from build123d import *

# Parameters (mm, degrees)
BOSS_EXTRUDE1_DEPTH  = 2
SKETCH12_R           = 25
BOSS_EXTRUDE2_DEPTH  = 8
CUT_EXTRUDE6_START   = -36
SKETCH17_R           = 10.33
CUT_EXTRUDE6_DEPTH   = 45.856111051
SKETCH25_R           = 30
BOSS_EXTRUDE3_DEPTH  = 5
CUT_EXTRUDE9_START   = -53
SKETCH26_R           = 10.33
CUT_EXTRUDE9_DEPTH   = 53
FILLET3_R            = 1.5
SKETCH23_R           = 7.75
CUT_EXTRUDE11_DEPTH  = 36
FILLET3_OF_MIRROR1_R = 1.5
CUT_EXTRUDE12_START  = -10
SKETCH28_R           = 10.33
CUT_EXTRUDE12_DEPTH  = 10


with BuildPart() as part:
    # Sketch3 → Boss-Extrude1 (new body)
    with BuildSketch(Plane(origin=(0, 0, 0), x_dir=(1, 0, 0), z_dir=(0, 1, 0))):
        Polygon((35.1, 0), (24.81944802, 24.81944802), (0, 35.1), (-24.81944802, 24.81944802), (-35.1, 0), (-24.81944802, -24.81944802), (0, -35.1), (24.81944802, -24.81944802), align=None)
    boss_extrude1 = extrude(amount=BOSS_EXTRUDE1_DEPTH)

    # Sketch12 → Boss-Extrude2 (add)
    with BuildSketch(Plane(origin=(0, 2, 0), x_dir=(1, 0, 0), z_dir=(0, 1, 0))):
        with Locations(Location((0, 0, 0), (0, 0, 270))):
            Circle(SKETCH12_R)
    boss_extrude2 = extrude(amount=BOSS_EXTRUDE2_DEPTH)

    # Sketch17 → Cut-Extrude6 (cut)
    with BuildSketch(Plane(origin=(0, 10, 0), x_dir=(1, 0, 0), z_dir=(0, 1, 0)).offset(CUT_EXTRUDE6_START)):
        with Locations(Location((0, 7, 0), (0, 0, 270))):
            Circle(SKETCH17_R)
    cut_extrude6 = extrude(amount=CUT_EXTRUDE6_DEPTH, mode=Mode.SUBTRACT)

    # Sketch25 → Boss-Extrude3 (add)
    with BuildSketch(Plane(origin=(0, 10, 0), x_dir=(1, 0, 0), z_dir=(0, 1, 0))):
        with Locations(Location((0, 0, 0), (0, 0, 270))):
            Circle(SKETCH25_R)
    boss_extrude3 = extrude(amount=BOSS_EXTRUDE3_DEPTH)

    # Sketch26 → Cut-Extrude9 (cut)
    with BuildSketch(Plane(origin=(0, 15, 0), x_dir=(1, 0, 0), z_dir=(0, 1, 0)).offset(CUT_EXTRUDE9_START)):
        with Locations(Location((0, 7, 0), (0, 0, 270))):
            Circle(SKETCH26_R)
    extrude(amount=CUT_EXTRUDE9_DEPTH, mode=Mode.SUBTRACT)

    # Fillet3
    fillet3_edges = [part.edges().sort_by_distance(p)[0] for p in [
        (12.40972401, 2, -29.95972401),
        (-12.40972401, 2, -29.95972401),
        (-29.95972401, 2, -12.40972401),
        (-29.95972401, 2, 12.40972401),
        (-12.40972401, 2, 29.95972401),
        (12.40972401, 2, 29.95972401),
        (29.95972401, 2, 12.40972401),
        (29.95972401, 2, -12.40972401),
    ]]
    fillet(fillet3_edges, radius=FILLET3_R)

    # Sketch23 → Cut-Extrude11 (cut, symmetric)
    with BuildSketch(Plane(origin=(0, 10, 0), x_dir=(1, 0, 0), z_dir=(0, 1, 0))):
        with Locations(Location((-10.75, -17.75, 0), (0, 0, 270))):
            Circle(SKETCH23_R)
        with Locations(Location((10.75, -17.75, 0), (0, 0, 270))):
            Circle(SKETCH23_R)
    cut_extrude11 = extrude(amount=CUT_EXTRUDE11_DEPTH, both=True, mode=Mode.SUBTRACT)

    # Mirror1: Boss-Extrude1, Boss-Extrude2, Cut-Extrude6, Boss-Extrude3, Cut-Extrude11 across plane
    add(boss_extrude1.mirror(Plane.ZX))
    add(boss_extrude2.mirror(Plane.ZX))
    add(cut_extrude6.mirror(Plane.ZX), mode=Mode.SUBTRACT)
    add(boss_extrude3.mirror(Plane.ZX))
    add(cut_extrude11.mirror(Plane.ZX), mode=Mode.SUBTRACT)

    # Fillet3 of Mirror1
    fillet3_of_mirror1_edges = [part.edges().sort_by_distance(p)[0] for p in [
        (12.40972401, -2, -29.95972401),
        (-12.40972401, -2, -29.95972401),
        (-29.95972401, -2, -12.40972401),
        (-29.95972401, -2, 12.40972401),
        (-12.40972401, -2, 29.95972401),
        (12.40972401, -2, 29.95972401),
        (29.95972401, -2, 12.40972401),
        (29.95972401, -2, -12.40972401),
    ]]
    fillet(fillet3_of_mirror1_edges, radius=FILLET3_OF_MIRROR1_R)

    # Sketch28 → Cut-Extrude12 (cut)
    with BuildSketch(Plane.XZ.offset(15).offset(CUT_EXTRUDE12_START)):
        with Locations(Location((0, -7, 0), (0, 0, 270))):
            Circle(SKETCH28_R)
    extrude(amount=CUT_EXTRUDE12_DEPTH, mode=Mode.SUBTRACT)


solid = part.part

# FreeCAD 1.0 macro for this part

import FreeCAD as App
import Part
import Sketcher

V = App.Vector
Q = App.Units.Quantity


def edges_at(feature, points):
    """Names of the edges that pass closest to the given points."""
    edges = feature.Shape.Edges
    near = lambda p: min(range(len(edges)), key=lambda i: edges[i].distToShape(Part.Vertex(*p))[0])
    return sorted({f"Edge{near(p) + 1}" for p in points})


def add_polygon(sketch, points):
    """Adds a closed chain of lines whose ends are joined by coincident constraints."""
    first, n = sketch.GeometryCount, len(points)
    for a, b in zip(points, points[1:] + points[:1]):
        sketch.addGeometry(Part.LineSegment(App.Vector(*a, 0), App.Vector(*b, 0)), False)
    for i in range(n):
        sketch.addConstraint(Sketcher.Constraint("Coincident", first + i, 2, first + (i + 1) % n, 1))

doc = App.newDocument("Part")
body = doc.addObject("PartDesign::Body", "Body")

sketch1 = body.newObject("Sketcher::SketchObject", "Sketch")
sketch1.AttachmentSupport = (doc.getObject("XZ_Plane"), [""])
sketch1.MapMode = "FlatFace"
add_polygon(sketch1, [(35, 0), (25, -25), (0, -35), (-25, -25), (-35, 0), (-25, 25), (0, 35), (25, 25)])
sketch1.addConstraint([
    Sketcher.Constraint("Symmetric", 0, 2, 4, 2, -1, 1),
    Sketcher.Constraint("Symmetric", 1, 2, 5, 2, -1, 1),
    Sketcher.Constraint("Symmetric", 2, 2, 6, 2, -1, 1),
    Sketcher.Constraint("Symmetric", 3, 2, 7, 2, -1, 1),
    Sketcher.Constraint("Symmetric", 0, 2, 2, 2, -2),
    Sketcher.Constraint("PointOnObject", 1, 2, -2),
    Sketcher.Constraint("PointOnObject", 3, 2, -1),
    Sketcher.Constraint("Perpendicular", 0, 2),
    Sketcher.Constraint("Equal", 0, 1),
    Sketcher.Constraint("Angle", 0, Q("-112.5 deg")),
    Sketcher.Constraint("DistanceY", 1, 2, -1, 1, Q("35.1 mm")),
])
pad1 = body.newObject("PartDesign::Pad", "Pad")
pad1.Profile = sketch1
pad1.Length = 2
pad1.Reversed = True

sketch2 = body.newObject("Sketcher::SketchObject", "Sketch001")
sketch2.AttachmentSupport = (doc.getObject("XZ_Plane"), [""])
sketch2.MapMode = "FlatFace"
sketch2.AttachmentOffset = App.Placement(V(0, 0, -2), App.Rotation())
sketch2.addGeometry(Part.Circle(V(0, 0, 0), V(0, 0, 1), 25), False)
sketch2.addConstraint([
    Sketcher.Constraint("Coincident", 0, 3, -1, 1),
    Sketcher.Constraint("Diameter", 0, Q("50 mm")),
])
pad2 = body.newObject("PartDesign::Pad", "Pad001")
pad2.Profile = sketch2
pad2.Length = 8
pad2.Reversed = True

sketch3 = body.newObject("Sketcher::SketchObject", "Sketch002")
sketch3.AttachmentSupport = (doc.getObject("XZ_Plane"), [""])
sketch3.MapMode = "FlatFace"
sketch3.AttachmentOffset = App.Placement(V(0, 0, 26), App.Rotation())
sketch3.addGeometry(Part.Circle(V(0, -7, 0), V(0, 0, 1), 10), False)
sketch3.addConstraint([
    Sketcher.Constraint("PointOnObject", 0, 3, -2),
    Sketcher.Constraint("Diameter", 0, Q("20.66 mm")),
    Sketcher.Constraint("DistanceY", 0, 3, -1, 1, Q("7 mm")),
])
pocket1 = body.newObject("PartDesign::Pocket", "Pocket")
pocket1.Profile = sketch3
pocket1.Length = 45.856111

sketch4 = body.newObject("Sketcher::SketchObject", "Sketch003")
sketch4.AttachmentSupport = (doc.getObject("XZ_Plane"), [""])
sketch4.MapMode = "FlatFace"
sketch4.AttachmentOffset = App.Placement(V(0, 0, -10), App.Rotation())
sketch4.addGeometry(Part.Circle(V(0, 0, 0), V(0, 0, 1), 30), False)
sketch4.addConstraint([
    Sketcher.Constraint("Coincident", 0, 3, -1, 1),
    Sketcher.Constraint("Diameter", 0, Q("60 mm")),
])
pad3 = body.newObject("PartDesign::Pad", "Pad002")
pad3.Profile = sketch4
pad3.Length = 5
pad3.Reversed = True

sketch5 = body.newObject("Sketcher::SketchObject", "Sketch004")
sketch5.AttachmentSupport = (doc.getObject("XZ_Plane"), [""])
sketch5.MapMode = "FlatFace"
sketch5.AttachmentOffset = App.Placement(V(0, 0, 38), App.Rotation())
sketch5.addGeometry(Part.Circle(V(0, -7, 0), V(0, 0, 1), 10), False)
sketch5.addConstraint([
    Sketcher.Constraint("PointOnObject", 0, 3, -2),
    Sketcher.Constraint("Diameter", 0, Q("20.66 mm")),
    Sketcher.Constraint("DistanceY", 0, 3, -1, 1, Q("7 mm")),
])
pocket2 = body.newObject("PartDesign::Pocket", "Pocket001")
pocket2.Profile = sketch5
pocket2.Length = 53
doc.recompute()

fillet = body.newObject("PartDesign::Fillet", "Fillet")
fillet.Base = (pocket2, edges_at(pocket2, [
    (12.41, 2, -29.96),
    (-12.41, 2, -29.96),
    (-29.96, 2, -12.41),
    (-29.96, 2, 12.41),
    (-12.41, 2, 29.96),
    (12.41, 2, 29.96),
    (29.96, 2, 12.41),
    (29.96, 2, -12.41),
]))
fillet.Radius = 1.5

sketch6 = body.newObject("Sketcher::SketchObject", "Sketch005")
sketch6.AttachmentSupport = (doc.getObject("XZ_Plane"), [""])
sketch6.MapMode = "FlatFace"
sketch6.AttachmentOffset = App.Placement(V(0, 0, -10), App.Rotation())
sketch6.addGeometry([
    Part.Circle(V(-11, 18, 0), V(0, 0, 1), 8),
    Part.Circle(V(11, 18, 0), V(0, 0, 1), 8),
], False)
sketch6.addConstraint([
    Sketcher.Constraint("Equal", 0, 1),
    Sketcher.Constraint("Symmetric", 0, 3, 1, 3, -2),
    Sketcher.Constraint("Diameter", 0, Q("15.5 mm")),
    Sketcher.Constraint("DistanceX", 0, 3, 1, 3, Q("21.5 mm")),
    Sketcher.Constraint("DistanceY", -1, 1, 0, 3, Q("17.75 mm")),
])
pocket3 = body.newObject("PartDesign::Pocket", "Pocket002")
pocket3.Profile = sketch6
pocket3.Length = 72
pocket3.Midplane = True
doc.recompute()

mirrored = body.newObject("PartDesign::Mirrored", "Mirrored")
mirrored.Originals = [pad1, pad2, pocket1, pad3, pocket3]
mirrored.MirrorPlane = (doc.getObject("XZ_Plane"), [""])
body.Tip = mirrored
doc.recompute()

fillet2 = body.newObject("PartDesign::Fillet", "Fillet001")
fillet2.Base = (mirrored, edges_at(mirrored, [
    (12.41, -2, -29.96),
    (-12.41, -2, -29.96),
    (-29.96, -2, -12.41),
    (-29.96, -2, 12.41),
    (-12.41, -2, 29.96),
    (12.41, -2, 29.96),
    (29.96, -2, 12.41),
    (29.96, -2, -12.41),
]))
fillet2.Radius = 1.5

sketch7 = body.newObject("Sketcher::SketchObject", "Sketch006")
sketch7.AttachmentSupport = (doc.getObject("XZ_Plane"), [""])
sketch7.MapMode = "FlatFace"
sketch7.AttachmentOffset = App.Placement(V(0, 0, 5), App.Rotation())
sketch7.addGeometry(Part.Circle(V(0, -7, 0), V(0, 0, 1), 10), False)
sketch7.addConstraint([
    Sketcher.Constraint("PointOnObject", 0, 3, -2),
    Sketcher.Constraint("Diameter", 0, Q("20.66 mm")),
    Sketcher.Constraint("DistanceY", 0, 3, -1, 1, Q("7 mm")),
])
pocket4 = body.newObject("PartDesign::Pocket", "Pocket003")
pocket4.Profile = sketch7
pocket4.Length = 10
pocket4.Reversed = True

doc.recompute()
